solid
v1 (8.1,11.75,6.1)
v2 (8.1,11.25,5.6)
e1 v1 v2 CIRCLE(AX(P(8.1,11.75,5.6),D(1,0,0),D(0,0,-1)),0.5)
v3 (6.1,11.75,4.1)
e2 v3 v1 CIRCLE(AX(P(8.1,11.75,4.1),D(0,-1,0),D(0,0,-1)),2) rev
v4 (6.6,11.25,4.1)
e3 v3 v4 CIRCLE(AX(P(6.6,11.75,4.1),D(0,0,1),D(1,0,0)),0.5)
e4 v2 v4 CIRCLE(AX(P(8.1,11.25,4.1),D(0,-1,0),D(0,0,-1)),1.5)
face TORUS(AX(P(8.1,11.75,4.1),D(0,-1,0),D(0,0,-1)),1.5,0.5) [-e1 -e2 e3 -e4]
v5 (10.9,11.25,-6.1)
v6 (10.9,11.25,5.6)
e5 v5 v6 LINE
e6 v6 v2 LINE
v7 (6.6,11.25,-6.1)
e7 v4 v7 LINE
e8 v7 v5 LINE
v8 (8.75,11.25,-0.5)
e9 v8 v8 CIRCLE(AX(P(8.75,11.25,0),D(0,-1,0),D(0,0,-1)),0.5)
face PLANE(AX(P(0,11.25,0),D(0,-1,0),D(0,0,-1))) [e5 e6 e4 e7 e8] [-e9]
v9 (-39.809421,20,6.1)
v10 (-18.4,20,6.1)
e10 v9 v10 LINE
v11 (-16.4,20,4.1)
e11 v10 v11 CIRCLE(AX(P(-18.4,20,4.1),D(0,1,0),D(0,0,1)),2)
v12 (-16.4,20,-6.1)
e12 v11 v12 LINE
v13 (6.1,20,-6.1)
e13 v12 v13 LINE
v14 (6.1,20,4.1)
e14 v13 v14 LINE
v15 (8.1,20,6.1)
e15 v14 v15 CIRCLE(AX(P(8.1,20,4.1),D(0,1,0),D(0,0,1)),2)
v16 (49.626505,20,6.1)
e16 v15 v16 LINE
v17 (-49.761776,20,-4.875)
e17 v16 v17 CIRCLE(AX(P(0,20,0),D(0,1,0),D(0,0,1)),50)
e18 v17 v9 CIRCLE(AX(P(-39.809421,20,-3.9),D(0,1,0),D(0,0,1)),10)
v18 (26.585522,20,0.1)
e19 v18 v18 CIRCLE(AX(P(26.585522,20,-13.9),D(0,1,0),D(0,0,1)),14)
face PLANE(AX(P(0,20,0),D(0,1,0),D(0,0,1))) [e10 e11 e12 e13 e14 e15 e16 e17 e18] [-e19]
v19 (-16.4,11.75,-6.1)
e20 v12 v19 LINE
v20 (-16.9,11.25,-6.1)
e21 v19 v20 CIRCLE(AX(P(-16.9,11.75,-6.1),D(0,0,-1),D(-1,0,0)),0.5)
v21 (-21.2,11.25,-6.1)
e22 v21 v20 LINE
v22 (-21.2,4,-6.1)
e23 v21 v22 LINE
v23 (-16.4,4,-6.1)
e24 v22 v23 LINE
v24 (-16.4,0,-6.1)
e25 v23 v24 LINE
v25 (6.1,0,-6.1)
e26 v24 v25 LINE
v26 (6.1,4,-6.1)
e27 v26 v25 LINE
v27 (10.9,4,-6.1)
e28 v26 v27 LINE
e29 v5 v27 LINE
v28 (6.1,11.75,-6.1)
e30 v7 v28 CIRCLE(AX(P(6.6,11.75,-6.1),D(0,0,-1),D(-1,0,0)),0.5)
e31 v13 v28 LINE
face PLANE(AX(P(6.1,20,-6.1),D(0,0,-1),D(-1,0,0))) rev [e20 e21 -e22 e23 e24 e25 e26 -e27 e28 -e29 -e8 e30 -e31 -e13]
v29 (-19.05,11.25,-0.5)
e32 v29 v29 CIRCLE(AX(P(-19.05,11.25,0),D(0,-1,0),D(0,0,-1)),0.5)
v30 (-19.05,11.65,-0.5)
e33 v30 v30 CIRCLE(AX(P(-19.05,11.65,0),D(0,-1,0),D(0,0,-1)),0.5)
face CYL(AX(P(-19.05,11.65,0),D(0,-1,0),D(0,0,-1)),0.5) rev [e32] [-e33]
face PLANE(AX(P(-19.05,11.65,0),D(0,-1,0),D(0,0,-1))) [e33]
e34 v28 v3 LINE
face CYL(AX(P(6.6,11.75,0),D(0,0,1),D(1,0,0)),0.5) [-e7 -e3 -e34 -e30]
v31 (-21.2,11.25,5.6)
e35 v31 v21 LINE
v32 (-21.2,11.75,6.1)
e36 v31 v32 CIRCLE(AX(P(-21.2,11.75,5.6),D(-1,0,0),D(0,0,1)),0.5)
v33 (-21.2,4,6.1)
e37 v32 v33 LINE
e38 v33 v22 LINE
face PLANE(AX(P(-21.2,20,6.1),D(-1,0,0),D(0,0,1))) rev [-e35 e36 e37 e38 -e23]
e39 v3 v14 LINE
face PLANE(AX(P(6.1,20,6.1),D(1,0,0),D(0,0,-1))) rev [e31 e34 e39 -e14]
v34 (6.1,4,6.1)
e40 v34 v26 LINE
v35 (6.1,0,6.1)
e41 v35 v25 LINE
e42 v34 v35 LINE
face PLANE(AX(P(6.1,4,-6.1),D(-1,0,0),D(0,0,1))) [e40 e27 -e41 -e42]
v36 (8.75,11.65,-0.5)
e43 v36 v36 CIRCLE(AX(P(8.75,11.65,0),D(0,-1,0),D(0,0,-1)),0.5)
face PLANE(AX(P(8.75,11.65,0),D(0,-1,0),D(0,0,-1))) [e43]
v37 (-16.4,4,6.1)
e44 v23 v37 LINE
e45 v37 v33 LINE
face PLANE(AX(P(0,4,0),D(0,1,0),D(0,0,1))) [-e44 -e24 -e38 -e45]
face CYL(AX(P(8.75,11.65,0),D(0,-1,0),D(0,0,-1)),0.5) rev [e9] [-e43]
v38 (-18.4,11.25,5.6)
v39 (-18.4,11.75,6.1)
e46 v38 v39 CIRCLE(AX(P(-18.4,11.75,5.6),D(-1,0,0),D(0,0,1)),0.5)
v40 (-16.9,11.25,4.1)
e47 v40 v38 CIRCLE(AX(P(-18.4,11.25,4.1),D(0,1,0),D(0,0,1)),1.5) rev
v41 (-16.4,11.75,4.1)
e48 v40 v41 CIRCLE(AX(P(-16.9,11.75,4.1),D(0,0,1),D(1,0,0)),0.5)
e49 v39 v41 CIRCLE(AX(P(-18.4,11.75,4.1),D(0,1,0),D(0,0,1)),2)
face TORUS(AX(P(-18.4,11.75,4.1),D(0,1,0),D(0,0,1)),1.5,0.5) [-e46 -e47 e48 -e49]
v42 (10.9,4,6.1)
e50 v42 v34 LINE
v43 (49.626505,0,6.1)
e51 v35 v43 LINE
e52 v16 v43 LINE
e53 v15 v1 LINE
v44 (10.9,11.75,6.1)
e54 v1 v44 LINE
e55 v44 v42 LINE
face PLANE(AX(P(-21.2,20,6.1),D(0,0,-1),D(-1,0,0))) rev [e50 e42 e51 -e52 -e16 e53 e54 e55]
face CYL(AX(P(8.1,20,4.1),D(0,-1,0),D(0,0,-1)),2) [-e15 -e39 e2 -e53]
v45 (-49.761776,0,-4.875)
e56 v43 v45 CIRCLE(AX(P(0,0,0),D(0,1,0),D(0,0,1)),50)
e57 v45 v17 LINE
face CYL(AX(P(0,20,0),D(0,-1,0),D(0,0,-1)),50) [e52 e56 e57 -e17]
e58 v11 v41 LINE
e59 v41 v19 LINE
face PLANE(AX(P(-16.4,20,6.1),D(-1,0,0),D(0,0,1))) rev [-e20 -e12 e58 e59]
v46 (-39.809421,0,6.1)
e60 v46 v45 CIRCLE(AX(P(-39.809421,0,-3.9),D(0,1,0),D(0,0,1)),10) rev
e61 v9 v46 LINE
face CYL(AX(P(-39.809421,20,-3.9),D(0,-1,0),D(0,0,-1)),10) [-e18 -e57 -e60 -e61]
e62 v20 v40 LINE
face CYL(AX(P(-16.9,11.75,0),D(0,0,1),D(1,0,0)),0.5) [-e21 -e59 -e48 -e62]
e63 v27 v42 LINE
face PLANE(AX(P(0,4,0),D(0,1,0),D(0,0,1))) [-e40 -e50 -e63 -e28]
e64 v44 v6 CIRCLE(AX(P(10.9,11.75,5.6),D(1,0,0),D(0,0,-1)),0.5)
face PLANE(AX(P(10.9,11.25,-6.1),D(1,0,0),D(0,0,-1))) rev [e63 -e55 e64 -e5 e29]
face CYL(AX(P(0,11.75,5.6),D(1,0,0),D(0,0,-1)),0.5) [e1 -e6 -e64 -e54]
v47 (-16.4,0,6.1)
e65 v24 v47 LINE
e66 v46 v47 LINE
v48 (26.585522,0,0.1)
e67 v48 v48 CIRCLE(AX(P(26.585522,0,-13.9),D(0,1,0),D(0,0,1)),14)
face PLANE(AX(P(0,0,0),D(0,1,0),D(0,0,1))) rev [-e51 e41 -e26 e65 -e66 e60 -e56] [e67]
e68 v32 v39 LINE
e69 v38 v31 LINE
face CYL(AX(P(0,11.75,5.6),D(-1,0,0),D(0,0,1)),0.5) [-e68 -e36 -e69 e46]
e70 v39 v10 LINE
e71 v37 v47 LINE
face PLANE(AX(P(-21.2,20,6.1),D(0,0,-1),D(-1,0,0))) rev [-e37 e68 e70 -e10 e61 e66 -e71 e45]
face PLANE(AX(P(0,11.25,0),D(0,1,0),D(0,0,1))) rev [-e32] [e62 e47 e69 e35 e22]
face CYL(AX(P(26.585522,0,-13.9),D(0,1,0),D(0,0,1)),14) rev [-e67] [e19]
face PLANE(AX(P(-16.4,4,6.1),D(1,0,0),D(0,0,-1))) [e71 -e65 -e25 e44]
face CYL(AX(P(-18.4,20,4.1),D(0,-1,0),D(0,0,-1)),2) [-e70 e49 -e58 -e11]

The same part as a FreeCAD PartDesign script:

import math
import FreeCAD as App
import Part
import Sketcher
from FreeCAD import Vector
Q = App.Units.Quantity


def edges_at(feature, points):
    """Names of the edges that pass closest to the given points."""
    edges = feature.Shape.Edges
    near = lambda p: min(range(len(edges)), key=lambda i: edges[i].distToShape(Part.Vertex(*p))[0])
    return sorted({f"Edge{near(p) + 1}" for p in points})


def add_polygon(sketch, points):
    """Adds a closed chain of lines whose ends are joined by coincident constraints."""
    first, n = sketch.GeometryCount, len(points)
    for a, b in zip(points, points[1:] + points[:1]):
        sketch.addGeometry(Part.LineSegment(App.Vector(*a, 0), App.Vector(*b, 0)), False)
    for i in range(n):
        sketch.addConstraint(Sketcher.Constraint("Coincident", first + i, 2, first + (i + 1) % n, 1))

doc = App.newDocument("Part")
body = doc.addObject("PartDesign::Body", "Body")

# Sketch on XZ plane
sketch1 = body.newObject("Sketcher::SketchObject", "Sketch")
sketch1.AttachmentSupport = (doc.getObject("XZ_Plane"), [""])
sketch1.MapMode = "FlatFace"
sketch1.addGeometry(Part.Circle(Vector(0, 0, 0), Vector(0, 0, 1), 50), False)
sketch1.addConstraint(Sketcher.Constraint("Coincident", 0, 3, -1, 1))
sketch1.addConstraint(Sketcher.Constraint("Diameter", 0, Q("100 mm")))
pad1 = body.newObject("PartDesign::Pad", "Pad")
pad1.Profile = sketch1
pad1.Length = 20
pad1.Reversed = True

# Sketch on XZ plane
sketch2 = body.newObject("Sketcher::SketchObject", "Sketch001")
sketch2.AttachmentSupport = (doc.getObject("XZ_Plane"), [""])
sketch2.MapMode = "FlatFace"
sketch2.addGeometry(Part.LineSegment(Vector(-21, 45, 0), Vector(-21, 6, 0)), False)
sketch2.addGeometry(Part.LineSegment(Vector(-21, 6, 0), Vector(11, 6, 0)), False)
sketch2.addGeometry(Part.LineSegment(Vector(11, 6, 0), Vector(10, 49, 0)), False)
sketch2.addGeometry(Part.ArcOfCircle(Part.Circle(Vector(0, 0, 0), Vector(0, 0, 1), 50), math.radians(78), math.radians(115)), False)
sketch2.addConstraint(Sketcher.Constraint("Coincident", 0, 2, 1, 1))
sketch2.addConstraint(Sketcher.Constraint("Coincident", 1, 2, 2, 1))
sketch2.addConstraint(Sketcher.Constraint("Coincident", 2, 2, 3, 1))
sketch2.addConstraint(Sketcher.Constraint("Coincident", 3, 2, 0, 1))
sketch2.addConstraint(Sketcher.Constraint("Vertical", 0))
sketch2.addConstraint(Sketcher.Constraint("Horizontal", 1))
sketch2.addConstraint(Sketcher.Constraint("Coincident", 3, 3, -1, 1))
sketch2.addConstraint(Sketcher.Constraint("Radius", 3, Q("50 mm")))
sketch2.addConstraint(Sketcher.Constraint("DistanceX", 1, 1, 1, 2, Q("32.1 mm")))
sketch2.addConstraint(Sketcher.Constraint("DistanceX", 0, 2, -1, 1, Q("21.2 mm")))
sketch2.addConstraint(Sketcher.Constraint("DistanceY", -1, 1, 0, 2, Q("6.1 mm")))
sketch2.addConstraint(Sketcher.Constraint("DistanceX", -1, 1, 2, 2, Q("10.05 mm")))
pocket1 = body.newObject("PartDesign::Pocket", "Pocket")
pocket1.Profile = sketch2
pocket1.Type = "ThroughAll"

# Sketch on XZ plane
sketch3 = body.newObject("Sketcher::SketchObject", "Sketch002")
sketch3.AttachmentSupport = (doc.getObject("XZ_Plane"), [""])
sketch3.MapMode = "FlatFace"
add_polygon(sketch3, [(-16, 6), (-16, -6), (6, -6), (6, 6)])  # lines 0-3
sketch3.addConstraint(Sketcher.Constraint("Vertical", 0))
sketch3.addConstraint(Sketcher.Constraint("Horizontal", 1))
sketch3.addConstraint(Sketcher.Constraint("Vertical", 2))
sketch3.addConstraint(Sketcher.Constraint("Horizontal", 3))
sketch3.addConstraint(Sketcher.Constraint("DistanceX", 1, 1, 1, 2, Q("22.5 mm")))
sketch3.addConstraint(Sketcher.Constraint("DistanceY", 0, 2, 0, 1, Q("12.2 mm")))
sketch3.addConstraint(Sketcher.Constraint("DistanceX", 0, 2, -1, 1, Q("16.4 mm")))
sketch3.addConstraint(Sketcher.Constraint("DistanceY", 0, 2, -1, 1, Q("6.1 mm")))
pocket2 = body.newObject("PartDesign::Pocket", "Pocket001")
pocket2.Profile = sketch3
pocket2.Type = "ThroughAll"

# Sketch on XZ plane
sketch4 = body.newObject("Sketcher::SketchObject", "Sketch003")
sketch4.AttachmentSupport = (doc.getObject("XZ_Plane"), [""])
sketch4.MapMode = "FlatFace"
add_polygon(sketch4, [(-21.2, 6.1), (-21.2, -6.1), (-16.4, -6.1), (-16.4, 6.1)])  # lines 0-3
add_polygon(sketch4, [(6.1, 6.1), (6.1, -6.1), (10.9, -6.1), (10.9, 6.1)])  # lines 4-7
sketch4.addConstraint(Sketcher.Constraint("Vertical", 0))
sketch4.addConstraint(Sketcher.Constraint("Horizontal", 1))
sketch4.addConstraint(Sketcher.Constraint("Vertical", 2))
sketch4.addConstraint(Sketcher.Constraint("Horizontal", 3))
sketch4.addConstraint(Sketcher.Constraint("Vertical", 4))
sketch4.addConstraint(Sketcher.Constraint("Horizontal", 5))
sketch4.addConstraint(Sketcher.Constraint("Vertical", 6))
sketch4.addConstraint(Sketcher.Constraint("Horizontal", 7))
sketch4.addConstraint(Sketcher.Constraint("Horizontal", 1, 2, 4, 2))
sketch4.addConstraint(Sketcher.Constraint("Horizontal", 3, 2, 6, 2))
sketch4.addConstraint(Sketcher.Constraint("Equal", 3, 5))
sketch4.addConstraint(Sketcher.Constraint("DistanceX", 1, 1, 1, 2, Q("4.8 mm")))
sketch4.addConstraint(Sketcher.Constraint("DistanceY", 0, 2, 0, 1, Q("12.2 mm")))
sketch4.addConstraint(Sketcher.Constraint("DistanceX", 0, 2, -1, 1, Q("21.2 mm")))
sketch4.addConstraint(Sketcher.Constraint("DistanceY", 0, 2, -1, 1, Q("6.1 mm")))
sketch4.addConstraint(Sketcher.Constraint("DistanceX", -1, 1, 4, 2, Q("6.1 mm")))
pocket3 = body.newObject("PartDesign::Pocket", "Pocket002")
pocket3.Profile = sketch4
pocket3.Length = 11.25

# Sketch on XZ plane
sketch5 = body.newObject("Sketcher::SketchObject", "Sketch004")
sketch5.AttachmentSupport = (doc.getObject("XZ_Plane"), [""])
sketch5.MapMode = "FlatFace"
sketch5.AttachmentOffset = App.Placement(Vector(0, 0, -11.25), App.Rotation())
sketch5.addGeometry(Part.Circle(Vector(8.8, 0, 0), Vector(0, 0, 1), 0.5), False)
sketch5.addGeometry(Part.Circle(Vector(-19.1, 0, 0), Vector(0, 0, 1), 0.5), False)
sketch5.addConstraint(Sketcher.Constraint("Equal", 0, 1))
sketch5.addConstraint(Sketcher.Constraint("PointOnObject", 0, 3, -1))
sketch5.addConstraint(Sketcher.Constraint("PointOnObject", 1, 3, -1))
sketch5.addConstraint(Sketcher.Constraint("Diameter", 0, Q("1 mm")))
sketch5.addConstraint(Sketcher.Constraint("DistanceX", 1, 3, 0, 3, Q("27.8 mm")))
sketch5.addConstraint(Sketcher.Constraint("DistanceX", -1, 1, 0, 3, Q("8.75 mm")))
pocket4 = body.newObject("PartDesign::Pocket", "Pocket003")
pocket4.Profile = sketch5
pocket4.Length = 0.4

# Sketch on XZ plane
sketch6 = body.newObject("Sketcher::SketchObject", "Sketch005")
sketch6.AttachmentSupport = (doc.getObject("XZ_Plane"), [""])
sketch6.MapMode = "FlatFace"
sketch6.addGeometry(Part.ArcOfCircle(Part.Circle(Vector(0, 0, 0), Vector(0, 0, 1), 50), math.radians(7), math.radians(173)), False)
sketch6.addGeometry(Part.LineSegment(Vector(-50, 6, 0), Vector(50, 6, 0)), False)
sketch6.addConstraint(Sketcher.Constraint("Coincident", 0, 1, 1, 2))
sketch6.addConstraint(Sketcher.Constraint("Coincident", 1, 1, 0, 2))
sketch6.addConstraint(Sketcher.Constraint("Horizontal", 1))
sketch6.addConstraint(Sketcher.Constraint("Coincident", 0, 3, -1, 1))
sketch6.addConstraint(Sketcher.Constraint("Radius", 0, Q("50 mm")))
sketch6.addConstraint(Sketcher.Constraint("DistanceY", -1, 1, 0, 1, Q("6.1 mm")))
pocket5 = body.newObject("PartDesign::Pocket", "Pocket004")
pocket5.Profile = sketch6
pocket5.Type = "ThroughAll"
doc.recompute()

fillet = body.newObject("PartDesign::Fillet", "Fillet")
fillet.Base = (pocket5, edges_at(pocket5, [(-16.4, 15.625, 6.1), (6.1, 15.625, 6.1)]))
fillet.Radius = 2
doc.recompute()

fillet2 = body.newObject("PartDesign::Fillet", "Fillet001")
fillet2.Base = (fillet, edges_at(fillet, [
    (-19.8, 11.25, 6.1),
    (-16.986, 11.25, 5.514),
    (6.1, 11.25, -1),
    (6.686, 11.25, 5.514),
    (-16.4, 11.25, -1),
    (9.5, 11.25, 6.1),
]))
fillet2.Radius = 0.5

# Sketch on XZ plane
sketch7 = body.newObject("Sketcher::SketchObject", "Sketch006")
sketch7.AttachmentSupport = (doc.getObject("XZ_Plane"), [""])
sketch7.MapMode = "FlatFace"
sketch7.AttachmentOffset = App.Placement(Vector(0, 0, -20), App.Rotation())
sketch7.addGeometry(Part.Circle(Vector(27, -14, 0), Vector(0, 0, 1), 14), False)
sketch7.addConstraint(Sketcher.Constraint("Diameter", 0, Q("28 mm")))
sketch7.addConstraint(Sketcher.Constraint("DistanceY", 0, 3, -1, 1, Q("13.9 mm")))
sketch7.addConstraint(Sketcher.Constraint("DistanceX", -1, 1, 0, 3, Q("26.585522 mm")))
pocket6 = body.newObject("PartDesign::Pocket", "Pocket005")
pocket6.Profile = sketch7
pocket6.Type = "ThroughAll"
pocket6.Reversed = True

# Sketch on XZ plane
sketch8 = body.newObject("Sketcher::SketchObject", "Sketch007")
sketch8.AttachmentSupport = (doc.getObject("XZ_Plane"), [""])
sketch8.MapMode = "FlatFace"
add_polygon(sketch8, [(-21.2, 6.1), (-21.2, -6.1), (-16.4, -6.1), (-16.4, 6.1)])  # lines 0-3
add_polygon(sketch8, [(6.1, 6.1), (6.1, -6.1), (10.9, -6.1), (10.9, 6.1)])  # lines 4-7
sketch8.addConstraint(Sketcher.Constraint("Vertical", 0))
sketch8.addConstraint(Sketcher.Constraint("Horizontal", 1))
sketch8.addConstraint(Sketcher.Constraint("Vertical", 2))
sketch8.addConstraint(Sketcher.Constraint("Horizontal", 3))
sketch8.addConstraint(Sketcher.Constraint("Vertical", 4))
sketch8.addConstraint(Sketcher.Constraint("Horizontal", 5))
sketch8.addConstraint(Sketcher.Constraint("Vertical", 6))
sketch8.addConstraint(Sketcher.Constraint("Horizontal", 7))
sketch8.addConstraint(Sketcher.Constraint("Horizontal", 1, 2, 4, 2))
sketch8.addConstraint(Sketcher.Constraint("Horizontal", 3, 2, 6, 2))
sketch8.addConstraint(Sketcher.Constraint("Equal", 3, 5))
sketch8.addConstraint(Sketcher.Constraint("DistanceX", 1, 1, 1, 2, Q("4.8 mm")))
sketch8.addConstraint(Sketcher.Constraint("DistanceY", 0, 2, 0, 1, Q("12.2 mm")))
sketch8.addConstraint(Sketcher.Constraint("DistanceX", 0, 2, -1, 1, Q("21.2 mm")))
sketch8.addConstraint(Sketcher.Constraint("DistanceY", 0, 2, -1, 1, Q("6.1 mm")))
sketch8.addConstraint(Sketcher.Constraint("DistanceX", -1, 1, 4, 2, Q("6.1 mm")))
pad2 = body.newObject("PartDesign::Pad", "Pad001")
pad2.Profile = sketch8
pad2.Length = 4
pad2.Reversed = True
doc.recompute()

fillet3 = body.newObject("PartDesign::Fillet", "Fillet002")
fillet3.Base = (pad2, edges_at(pad2, [(-49.627, 10, 6.1)]))
fillet3.Radius = 10

doc.recompute()
